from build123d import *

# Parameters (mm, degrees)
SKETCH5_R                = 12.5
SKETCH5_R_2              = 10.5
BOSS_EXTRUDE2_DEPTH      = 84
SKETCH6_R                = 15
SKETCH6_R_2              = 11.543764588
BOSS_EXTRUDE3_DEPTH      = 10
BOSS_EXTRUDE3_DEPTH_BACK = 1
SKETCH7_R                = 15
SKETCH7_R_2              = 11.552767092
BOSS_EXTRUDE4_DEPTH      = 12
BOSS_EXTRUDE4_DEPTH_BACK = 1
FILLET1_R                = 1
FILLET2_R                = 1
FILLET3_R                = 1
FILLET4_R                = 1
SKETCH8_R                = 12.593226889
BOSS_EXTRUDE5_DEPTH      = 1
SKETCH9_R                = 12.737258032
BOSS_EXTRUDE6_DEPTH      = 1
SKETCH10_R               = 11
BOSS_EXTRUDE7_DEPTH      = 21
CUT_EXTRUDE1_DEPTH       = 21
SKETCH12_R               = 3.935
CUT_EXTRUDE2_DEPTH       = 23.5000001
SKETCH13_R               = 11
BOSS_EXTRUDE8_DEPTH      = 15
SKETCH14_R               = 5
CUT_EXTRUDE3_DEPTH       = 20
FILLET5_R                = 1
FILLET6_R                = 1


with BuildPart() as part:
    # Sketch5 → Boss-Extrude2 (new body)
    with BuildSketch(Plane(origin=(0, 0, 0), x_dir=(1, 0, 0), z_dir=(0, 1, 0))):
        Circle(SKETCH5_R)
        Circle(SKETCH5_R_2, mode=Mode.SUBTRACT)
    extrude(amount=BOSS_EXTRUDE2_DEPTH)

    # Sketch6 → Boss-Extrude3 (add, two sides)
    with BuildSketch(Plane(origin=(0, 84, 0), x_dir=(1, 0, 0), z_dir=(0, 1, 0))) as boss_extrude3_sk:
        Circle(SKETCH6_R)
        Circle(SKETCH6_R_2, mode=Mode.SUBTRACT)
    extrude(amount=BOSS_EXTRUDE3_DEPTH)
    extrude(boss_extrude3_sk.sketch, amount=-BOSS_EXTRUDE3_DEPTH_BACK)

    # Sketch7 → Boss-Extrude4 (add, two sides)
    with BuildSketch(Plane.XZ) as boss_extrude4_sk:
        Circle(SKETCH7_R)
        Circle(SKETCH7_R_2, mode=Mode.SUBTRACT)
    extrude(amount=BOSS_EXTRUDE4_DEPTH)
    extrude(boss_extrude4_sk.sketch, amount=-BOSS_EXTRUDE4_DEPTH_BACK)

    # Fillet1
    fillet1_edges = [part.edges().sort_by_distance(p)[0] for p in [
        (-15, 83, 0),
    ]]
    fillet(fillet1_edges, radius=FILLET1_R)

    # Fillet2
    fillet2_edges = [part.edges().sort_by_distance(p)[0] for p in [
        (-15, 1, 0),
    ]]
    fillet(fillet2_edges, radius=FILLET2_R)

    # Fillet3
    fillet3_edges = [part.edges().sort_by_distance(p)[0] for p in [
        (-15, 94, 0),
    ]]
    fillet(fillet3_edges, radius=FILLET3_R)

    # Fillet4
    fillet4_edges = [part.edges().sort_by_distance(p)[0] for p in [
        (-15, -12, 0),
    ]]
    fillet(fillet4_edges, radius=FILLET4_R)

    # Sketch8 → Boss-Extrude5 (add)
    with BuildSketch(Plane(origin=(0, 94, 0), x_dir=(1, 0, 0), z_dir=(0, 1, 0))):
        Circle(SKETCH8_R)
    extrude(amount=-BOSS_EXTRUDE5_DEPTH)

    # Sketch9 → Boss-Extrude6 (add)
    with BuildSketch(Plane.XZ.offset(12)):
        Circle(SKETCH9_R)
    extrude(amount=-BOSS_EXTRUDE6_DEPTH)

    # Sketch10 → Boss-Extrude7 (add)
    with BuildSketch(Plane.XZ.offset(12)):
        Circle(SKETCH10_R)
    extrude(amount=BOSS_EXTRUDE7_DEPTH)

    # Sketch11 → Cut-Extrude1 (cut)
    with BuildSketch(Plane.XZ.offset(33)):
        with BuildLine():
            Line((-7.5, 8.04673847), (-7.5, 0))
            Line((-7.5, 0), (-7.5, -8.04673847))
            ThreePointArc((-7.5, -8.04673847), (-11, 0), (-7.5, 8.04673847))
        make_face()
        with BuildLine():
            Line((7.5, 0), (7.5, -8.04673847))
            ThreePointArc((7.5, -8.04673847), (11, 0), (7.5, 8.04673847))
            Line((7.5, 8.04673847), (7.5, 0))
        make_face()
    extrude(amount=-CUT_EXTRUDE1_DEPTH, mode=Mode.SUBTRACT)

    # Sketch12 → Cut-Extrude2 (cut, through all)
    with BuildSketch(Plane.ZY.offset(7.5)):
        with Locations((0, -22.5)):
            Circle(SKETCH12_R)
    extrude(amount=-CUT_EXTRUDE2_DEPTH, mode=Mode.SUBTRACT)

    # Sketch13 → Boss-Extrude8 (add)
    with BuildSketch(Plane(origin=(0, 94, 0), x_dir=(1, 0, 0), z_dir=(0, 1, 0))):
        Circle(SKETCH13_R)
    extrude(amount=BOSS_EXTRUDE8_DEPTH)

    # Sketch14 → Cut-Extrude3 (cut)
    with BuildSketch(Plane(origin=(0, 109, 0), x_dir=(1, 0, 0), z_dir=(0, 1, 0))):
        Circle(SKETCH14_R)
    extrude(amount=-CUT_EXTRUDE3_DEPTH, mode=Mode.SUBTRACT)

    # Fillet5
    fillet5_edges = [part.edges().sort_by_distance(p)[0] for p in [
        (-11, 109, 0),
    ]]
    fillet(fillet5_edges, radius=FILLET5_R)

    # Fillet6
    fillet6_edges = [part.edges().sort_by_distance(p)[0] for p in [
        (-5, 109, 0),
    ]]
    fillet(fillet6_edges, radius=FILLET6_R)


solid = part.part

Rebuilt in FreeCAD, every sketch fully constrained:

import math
import FreeCAD as App
import Part
import Sketcher

V = App.Vector
Q = App.Units.Quantity


def edges_at(feature, points):
    """Names of the edges that pass closest to the given points."""
    edges = feature.Shape.Edges
    near = lambda p: min(range(len(edges)), key=lambda i: edges[i].distToShape(Part.Vertex(*p))[0])
    return sorted({f"Edge{near(p) + 1}" for p in points})

doc = App.newDocument("Part")
params = doc.addObject("Spreadsheet::Sheet", "Params")
for row, (alias, value) in enumerate([
    ("sketch1_diameter", "25 mm"),
    ("sketch1_diameter2", "21 mm"),
    ("pad1_length", "84 mm"),
    ("sketch2_diameter", "30 mm"),
    ("pad2_length", "10 mm"),
    ("pad2_length2", "1 mm"),
    ("sketch3_diameter", "30 mm"),
    ("pad3_length", "12 mm"),
    ("pad3_length2", "1 mm"),
    ("fillet_radius", "1 mm"),
    ("fillet2_radius", "1 mm"),
    ("fillet3_radius", "1 mm"),
    ("fillet4_radius", "1 mm"),
    ("pad4_length", "1 mm"),
    ("pad5_length", "1 mm"),
    ("sketch6_diameter", "22 mm"),
    ("pad6_length", "21 mm"),
    ("sketch7_radius", "11 mm"),
    ("pocket1_length", "21 mm"),
    ("sketch8_diameter", "7.87 mm"),
    ("sketch9_diameter", "22 mm"),
    ("pad7_length", "15 mm"),
    ("sketch10_diameter", "10 mm"),
    ("pocket3_length", "20 mm"),
    ("fillet5_radius", "1 mm"),
    ("fillet6_radius", "1 mm"),
], start=1):
    params.set(f"A{row}", alias)
    params.set(f"B{row}", "=" + value)
    params.setAlias(f"B{row}", alias)

body = doc.addObject("PartDesign::Body", "Body")

sketch1 = doc.addObject("Sketcher::SketchObject", "Sketch")
body.addObject(sketch1)
sketch1.AttachmentSupport = (doc.XZ_Plane, [""])
sketch1.MapMode = "FlatFace"
sketch1.addGeometry([
    Part.Circle(V(0, 0, 0), V(0, 0, 1), 12),
    Part.Circle(V(0, 0, 0), V(0, 0, 1), 10),
], False)
sketch1.addConstraint([
    Sketcher.Constraint("Coincident", 0, 3, -1, 1),
    Sketcher.Constraint("Coincident", 1, 3, -1, 1),
    Sketcher.Constraint("Diameter", 0, Q("25 mm")),
    Sketcher.Constraint("Diameter", 1, Q("21 mm")),
])
sketch1.setExpression("Constraints[2]", "Params.sketch1_diameter")
sketch1.setExpression("Constraints[3]", "Params.sketch1_diameter2")
pad1 = doc.addObject("PartDesign::Pad", "Pad")
body.addObject(pad1)
pad1.Profile = sketch1
pad1.setExpression("Length", "Params.pad1_length")
pad1.Reversed = True

sketch2 = doc.addObject("Sketcher::SketchObject", "Sketch001")
body.addObject(sketch2)
sketch2.AttachmentSupport = (doc.XZ_Plane, [""])
sketch2.MapMode = "FlatFace"
sketch2.AttachmentOffset = App.Placement(V(0, 0, -84), App.Rotation())
sketch2.addGeometry([
    Part.Circle(V(0, 0, 0), V(0, 0, 1), 15),
    Part.Circle(V(0, 0, 0), V(0, 0, 1), 12),
], False)
sketch2.addConstraint([
    Sketcher.Constraint("Coincident", 0, 3, -1, 1),
    Sketcher.Constraint("Coincident", 1, 3, -1, 1),
    Sketcher.Constraint("Diameter", 0, Q("30 mm")),
    Sketcher.Constraint("Diameter", 1, Q("23.087529 mm")),
])
sketch2.setExpression("Constraints[2]", "Params.sketch2_diameter")
pad2 = doc.addObject("PartDesign::Pad", "Pad001")
body.addObject(pad2)
pad2.Profile = sketch2
pad2.Type = "TwoLengths"
pad2.setExpression("Length", "Params.pad2_length")
pad2.setExpression("Length2", "Params.pad2_length2")
pad2.Reversed = True

sketch3 = doc.addObject("Sketcher::SketchObject", "Sketch002")
body.addObject(sketch3)
sketch3.AttachmentSupport = (doc.XZ_Plane, [""])
sketch3.MapMode = "FlatFace"
sketch3.addGeometry([
    Part.Circle(V(0, 0, 0), V(0, 0, 1), 15),
    Part.Circle(V(0, 0, 0), V(0, 0, 1), 12),
], False)
sketch3.addConstraint([
    Sketcher.Constraint("Coincident", 0, 3, -1, 1),
    Sketcher.Constraint("Coincident", 1, 3, -1, 1),
    Sketcher.Constraint("Diameter", 0, Q("30 mm")),
    Sketcher.Constraint("Diameter", 1, Q("23.105534 mm")),
])
sketch3.setExpression("Constraints[2]", "Params.sketch3_diameter")
pad3 = doc.addObject("PartDesign::Pad", "Pad002")
body.addObject(pad3)
pad3.Profile = sketch3
pad3.Type = "TwoLengths"
pad3.setExpression("Length", "Params.pad3_length")
pad3.setExpression("Length2", "Params.pad3_length2")
doc.recompute()

fillet = doc.addObject("PartDesign::Fillet", "Fillet")
body.addObject(fillet)
fillet.Base = (pad3, edges_at(pad3, [(-15, 83, 0)]))
fillet.setExpression("Radius", "Params.fillet_radius")
doc.recompute()

fillet2 = doc.addObject("PartDesign::Fillet", "Fillet001")
body.addObject(fillet2)
fillet2.Base = (fillet, edges_at(fillet, [(-15, 1, 0)]))
fillet2.setExpression("Radius", "Params.fillet2_radius")
doc.recompute()

fillet3 = doc.addObject("PartDesign::Fillet", "Fillet002")
body.addObject(fillet3)
fillet3.Base = (fillet2, edges_at(fillet2, [(-15, 94, 0)]))
fillet3.setExpression("Radius", "Params.fillet3_radius")
doc.recompute()

fillet4 = doc.addObject("PartDesign::Fillet", "Fillet003")
body.addObject(fillet4)
fillet4.Base = (fillet3, edges_at(fillet3, [(-15, -12, 0)]))
fillet4.setExpression("Radius", "Params.fillet4_radius")

sketch4 = doc.addObject("Sketcher::SketchObject", "Sketch003")
body.addObject(sketch4)
sketch4.AttachmentSupport = (doc.XZ_Plane, [""])
sketch4.MapMode = "FlatFace"
sketch4.AttachmentOffset = App.Placement(V(0, 0, -94), App.Rotation())
sketch4.addGeometry(Part.Circle(V(0, 0, 0), V(0, 0, 1), 13), False)
sketch4.addConstraint([
    Sketcher.Constraint("Coincident", 0, 3, -1, 1),
    Sketcher.Constraint("Diameter", 0, Q("25.186454 mm")),
])
pad4 = doc.addObject("PartDesign::Pad", "Pad003")
body.addObject(pad4)
pad4.Profile = sketch4
pad4.setExpression("Length", "Params.pad4_length")

sketch5 = doc.addObject("Sketcher::SketchObject", "Sketch004")
body.addObject(sketch5)
sketch5.AttachmentSupport = (doc.XZ_Plane, [""])
sketch5.MapMode = "FlatFace"
sketch5.AttachmentOffset = App.Placement(V(0, 0, 12), App.Rotation())
sketch5.addGeometry(Part.Circle(V(0, 0, 0), V(0, 0, 1), 13), False)
sketch5.addConstraint([
    Sketcher.Constraint("Coincident", 0, 3, -1, 1),
    Sketcher.Constraint("Diameter", 0, Q("25.474516 mm")),
])
pad5 = doc.addObject("PartDesign::Pad", "Pad004")
body.addObject(pad5)
pad5.Profile = sketch5
pad5.setExpression("Length", "Params.pad5_length")
pad5.Reversed = True

sketch6 = doc.addObject("Sketcher::SketchObject", "Sketch005")
body.addObject(sketch6)
sketch6.AttachmentSupport = (doc.XZ_Plane, [""])
sketch6.MapMode = "FlatFace"
sketch6.AttachmentOffset = App.Placement(V(0, 0, 12), App.Rotation())
sketch6.addGeometry(Part.Circle(V(0, 0, 0), V(0, 0, 1), 11), False)
sketch6.addConstraint([
    Sketcher.Constraint("Coincident", 0, 3, -1, 1),
    Sketcher.Constraint("Diameter", 0, Q("22 mm")),
])
sketch6.setExpression("Constraints[1]", "Params.sketch6_diameter")
pad6 = doc.addObject("PartDesign::Pad", "Pad005")
body.addObject(pad6)
pad6.Profile = sketch6
pad6.setExpression("Length", "Params.pad6_length")

sketch7 = doc.addObject("Sketcher::SketchObject", "Sketch006")
body.addObject(sketch7)
sketch7.AttachmentSupport = (doc.XZ_Plane, [""])
sketch7.MapMode = "FlatFace"
sketch7.AttachmentOffset = App.Placement(V(0, 0, 33), App.Rotation())
sketch7.addGeometry([
    Part.LineSegment(V(-8, -8, 0), V(-8, 8, 0)),
    Part.ArcOfCircle(Part.Circle(V(0, 0, 0), V(0, 0, 1), 11), math.radians(133), math.radians(227)),
    Part.ArcOfCircle(Part.Circle(V(0, 0, 0), V(0, 0, 1), 11), math.radians(-47), math.radians(47)),
    Part.LineSegment(V(8, 8, 0), V(8, -8, 0)),
], False)
sketch7.addConstraint([
    Sketcher.Constraint("Coincident", 0, 1, 1, 2),
    Sketcher.Constraint("Coincident", 1, 1, 0, 2),
    Sketcher.Constraint("Coincident", 2, 1, 3, 2),
    Sketcher.Constraint("Coincident", 3, 1, 2, 2),
    Sketcher.Constraint("Vertical", 0),
    Sketcher.Constraint("Vertical", 3),
    Sketcher.Constraint("Coincident", 1, 3, -1, 1),
    Sketcher.Constraint("Coincident", 2, 3, -1, 1),
    Sketcher.Constraint("Equal", 1, 2),
    Sketcher.Constraint("Horizontal", 0, 1, 2, 1),
    Sketcher.Constraint("Radius", 1, Q("11 mm")),
    Sketcher.Constraint("DistanceX", 0, 1, 2, 1, Q("15 mm")),
])
sketch7.setExpression("Constraints[10]", "Params.sketch7_radius")
pocket1 = doc.addObject("PartDesign::Pocket", "Pocket")
body.addObject(pocket1)
pocket1.Profile = sketch7
pocket1.setExpression("Length", "Params.pocket1_length")

sketch8 = doc.addObject("Sketcher::SketchObject", "Sketch007")
body.addObject(sketch8)
sketch8.AttachmentSupport = (doc.YZ_Plane, [""])
sketch8.MapMode = "FlatFace"
sketch8.AttachmentOffset = App.Placement(V(0, 0, -7.5), App.Rotation())
sketch8.addGeometry(Part.Circle(V(-22.5, 0, 0), V(0, 0, 1), 3.9), False)
sketch8.addConstraint([
    Sketcher.Constraint("PointOnObject", 0, 3, -1),
    Sketcher.Constraint("Diameter", 0, Q("7.87 mm")),
    Sketcher.Constraint("DistanceX", 0, 3, -1, 1, Q("22.5 mm")),
])
sketch8.setExpression("Constraints[1]", "Params.sketch8_diameter")
pocket2 = doc.addObject("PartDesign::Pocket", "Pocket001")
body.addObject(pocket2)
pocket2.Profile = sketch8
pocket2.Type = "ThroughAll"
pocket2.Reversed = True

sketch9 = doc.addObject("Sketcher::SketchObject", "Sketch008")
body.addObject(sketch9)
sketch9.AttachmentSupport = (doc.XZ_Plane, [""])
sketch9.MapMode = "FlatFace"
sketch9.AttachmentOffset = App.Placement(V(0, 0, -94), App.Rotation())
sketch9.addGeometry(Part.Circle(V(0, 0, 0), V(0, 0, 1), 11), False)
sketch9.addConstraint([
    Sketcher.Constraint("Coincident", 0, 3, -1, 1),
    Sketcher.Constraint("Diameter", 0, Q("22 mm")),
])
sketch9.setExpression("Constraints[1]", "Params.sketch9_diameter")
pad7 = doc.addObject("PartDesign::Pad", "Pad006")
body.addObject(pad7)
pad7.Profile = sketch9
pad7.setExpression("Length", "Params.pad7_length")
pad7.Reversed = True

sketch10 = doc.addObject("Sketcher::SketchObject", "Sketch009")
body.addObject(sketch10)
sketch10.AttachmentSupport = (doc.XZ_Plane, [""])
sketch10.MapMode = "FlatFace"
sketch10.AttachmentOffset = App.Placement(V(0, 0, -109), App.Rotation())
sketch10.addGeometry(Part.Circle(V(0, 0, 0), V(0, 0, 1), 5), False)
sketch10.addConstraint([
    Sketcher.Constraint("Coincident", 0, 3, -1, 1),
    Sketcher.Constraint("Diameter", 0, Q("10 mm")),
])
sketch10.setExpression("Constraints[1]", "Params.sketch10_diameter")
pocket3 = doc.addObject("PartDesign::Pocket", "Pocket002")
body.addObject(pocket3)
pocket3.Profile = sketch10
pocket3.setExpression("Length", "Params.pocket3_length")
pocket3.Reversed = True
doc.recompute()

fillet5 = doc.addObject("PartDesign::Fillet", "Fillet004")
body.addObject(fillet5)
fillet5.Base = (pocket3, edges_at(pocket3, [(-11, 109, 0)]))
fillet5.setExpression("Radius", "Params.fillet5_radius")
doc.recompute()

fillet6 = doc.addObject("PartDesign::Fillet", "Fillet005")
body.addObject(fillet6)
fillet6.Base = (fillet5, edges_at(fillet5, [(-5, 109, 0)]))
fillet6.setExpression("Radius", "Params.fillet6_radius")

doc.recompute()
